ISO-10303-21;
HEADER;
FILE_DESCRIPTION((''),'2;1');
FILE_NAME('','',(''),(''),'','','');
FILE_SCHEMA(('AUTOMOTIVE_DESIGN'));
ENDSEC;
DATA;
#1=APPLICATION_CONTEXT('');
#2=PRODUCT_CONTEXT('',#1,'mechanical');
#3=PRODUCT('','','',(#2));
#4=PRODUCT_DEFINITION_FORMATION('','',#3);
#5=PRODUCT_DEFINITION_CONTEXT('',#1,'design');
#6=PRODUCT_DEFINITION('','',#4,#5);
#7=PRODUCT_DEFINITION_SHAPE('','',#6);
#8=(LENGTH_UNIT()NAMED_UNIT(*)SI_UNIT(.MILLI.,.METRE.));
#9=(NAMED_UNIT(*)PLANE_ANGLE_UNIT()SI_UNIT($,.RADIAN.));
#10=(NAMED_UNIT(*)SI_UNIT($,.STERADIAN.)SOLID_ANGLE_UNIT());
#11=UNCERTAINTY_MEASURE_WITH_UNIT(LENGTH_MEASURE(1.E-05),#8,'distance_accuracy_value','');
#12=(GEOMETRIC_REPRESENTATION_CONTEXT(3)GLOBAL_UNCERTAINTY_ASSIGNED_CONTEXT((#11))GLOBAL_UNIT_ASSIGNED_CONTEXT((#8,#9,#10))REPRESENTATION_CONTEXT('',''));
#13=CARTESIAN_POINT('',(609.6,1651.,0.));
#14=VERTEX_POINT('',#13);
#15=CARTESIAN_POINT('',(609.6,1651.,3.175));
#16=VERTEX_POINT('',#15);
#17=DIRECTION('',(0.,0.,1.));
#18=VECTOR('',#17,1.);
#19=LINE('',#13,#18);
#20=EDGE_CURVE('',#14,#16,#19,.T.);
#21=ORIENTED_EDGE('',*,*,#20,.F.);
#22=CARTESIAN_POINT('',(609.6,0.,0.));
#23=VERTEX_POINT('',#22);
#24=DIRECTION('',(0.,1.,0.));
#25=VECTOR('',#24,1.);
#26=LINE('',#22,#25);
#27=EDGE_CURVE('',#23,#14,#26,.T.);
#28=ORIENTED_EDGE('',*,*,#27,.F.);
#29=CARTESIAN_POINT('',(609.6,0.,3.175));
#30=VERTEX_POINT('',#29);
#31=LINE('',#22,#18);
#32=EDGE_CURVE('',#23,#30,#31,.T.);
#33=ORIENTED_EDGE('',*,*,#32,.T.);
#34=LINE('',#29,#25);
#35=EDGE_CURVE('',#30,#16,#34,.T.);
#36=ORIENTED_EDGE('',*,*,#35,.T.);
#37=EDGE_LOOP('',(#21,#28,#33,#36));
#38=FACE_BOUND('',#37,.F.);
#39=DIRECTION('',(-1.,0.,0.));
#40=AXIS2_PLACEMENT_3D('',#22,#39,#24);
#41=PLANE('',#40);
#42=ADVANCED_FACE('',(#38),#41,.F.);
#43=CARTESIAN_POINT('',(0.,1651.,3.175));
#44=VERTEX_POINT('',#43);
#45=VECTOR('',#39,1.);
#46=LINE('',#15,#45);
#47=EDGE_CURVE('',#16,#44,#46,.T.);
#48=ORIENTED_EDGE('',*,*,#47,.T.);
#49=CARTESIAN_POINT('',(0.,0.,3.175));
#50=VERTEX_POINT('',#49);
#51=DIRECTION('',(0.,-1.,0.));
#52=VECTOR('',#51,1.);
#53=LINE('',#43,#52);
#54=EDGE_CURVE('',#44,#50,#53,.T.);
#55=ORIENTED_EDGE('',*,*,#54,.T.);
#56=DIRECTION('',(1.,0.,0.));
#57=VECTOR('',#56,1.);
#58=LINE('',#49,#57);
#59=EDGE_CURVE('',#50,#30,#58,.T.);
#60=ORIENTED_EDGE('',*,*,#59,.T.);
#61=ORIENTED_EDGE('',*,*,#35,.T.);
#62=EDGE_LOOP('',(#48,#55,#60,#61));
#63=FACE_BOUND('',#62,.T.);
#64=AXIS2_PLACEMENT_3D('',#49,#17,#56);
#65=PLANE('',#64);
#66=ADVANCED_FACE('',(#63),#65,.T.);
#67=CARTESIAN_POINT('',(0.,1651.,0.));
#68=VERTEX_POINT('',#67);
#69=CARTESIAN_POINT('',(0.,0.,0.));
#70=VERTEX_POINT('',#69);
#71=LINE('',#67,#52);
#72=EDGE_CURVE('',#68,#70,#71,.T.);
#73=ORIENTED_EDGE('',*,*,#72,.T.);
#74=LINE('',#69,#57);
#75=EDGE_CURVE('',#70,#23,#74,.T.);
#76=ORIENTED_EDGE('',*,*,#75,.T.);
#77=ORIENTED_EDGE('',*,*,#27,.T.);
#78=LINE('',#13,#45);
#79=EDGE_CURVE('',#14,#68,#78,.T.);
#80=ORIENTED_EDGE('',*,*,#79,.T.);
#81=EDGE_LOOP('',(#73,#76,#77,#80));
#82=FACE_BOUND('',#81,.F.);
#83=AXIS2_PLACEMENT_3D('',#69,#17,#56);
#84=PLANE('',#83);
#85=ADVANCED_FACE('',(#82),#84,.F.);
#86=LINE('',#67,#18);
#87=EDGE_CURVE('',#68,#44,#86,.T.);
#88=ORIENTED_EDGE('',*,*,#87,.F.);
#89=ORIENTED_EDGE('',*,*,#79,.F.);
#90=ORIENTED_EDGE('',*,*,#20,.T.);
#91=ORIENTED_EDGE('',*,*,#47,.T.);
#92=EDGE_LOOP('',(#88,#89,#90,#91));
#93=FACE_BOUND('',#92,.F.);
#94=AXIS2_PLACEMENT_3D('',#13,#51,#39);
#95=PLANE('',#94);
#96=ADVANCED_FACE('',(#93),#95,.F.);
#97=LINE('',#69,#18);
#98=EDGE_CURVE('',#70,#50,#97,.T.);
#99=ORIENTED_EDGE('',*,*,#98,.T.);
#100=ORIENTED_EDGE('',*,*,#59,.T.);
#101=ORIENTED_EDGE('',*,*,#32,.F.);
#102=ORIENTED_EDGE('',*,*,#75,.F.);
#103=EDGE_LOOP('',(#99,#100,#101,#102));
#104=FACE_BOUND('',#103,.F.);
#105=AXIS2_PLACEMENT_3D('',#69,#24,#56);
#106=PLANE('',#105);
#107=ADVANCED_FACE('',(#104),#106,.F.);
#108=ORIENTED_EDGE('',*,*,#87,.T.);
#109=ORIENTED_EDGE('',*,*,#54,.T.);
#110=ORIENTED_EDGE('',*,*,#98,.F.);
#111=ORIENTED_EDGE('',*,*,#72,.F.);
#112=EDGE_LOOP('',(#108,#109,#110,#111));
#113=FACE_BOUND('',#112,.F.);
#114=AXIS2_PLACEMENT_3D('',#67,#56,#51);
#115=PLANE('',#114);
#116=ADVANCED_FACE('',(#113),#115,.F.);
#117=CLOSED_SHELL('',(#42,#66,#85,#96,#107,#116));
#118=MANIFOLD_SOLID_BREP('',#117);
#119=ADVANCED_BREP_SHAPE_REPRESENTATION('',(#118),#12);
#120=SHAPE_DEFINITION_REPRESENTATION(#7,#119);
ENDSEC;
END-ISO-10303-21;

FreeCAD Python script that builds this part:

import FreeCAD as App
import Part
import Sketcher
Q = App.Units.Quantity

doc = App.newDocument("Part")
body = doc.addObject("PartDesign::Body", "Body")

# Sketch on XY plane
sketch1 = doc.addObject("Sketcher::SketchObject", "Sketch")
body.addObject(sketch1)
sketch1.AttachmentSupport = (doc.XY_Plane, [""])
sketch1.MapMode = "FlatFace"
sketch1.addGeometry(Part.LineSegment(App.Vector(0, 1651, 0), App.Vector(0, 0, 0)), False)
sketch1.addGeometry(Part.LineSegment(App.Vector(0, 0, 0), App.Vector(610, 0, 0)), False)
sketch1.addGeometry(Part.LineSegment(App.Vector(610, 0, 0), App.Vector(610, 1651, 0)), False)
sketch1.addGeometry(Part.LineSegment(App.Vector(610, 1651, 0), App.Vector(0, 1651, 0)), False)
sketch1.addConstraint(Sketcher.Constraint("Coincident", 0, 2, 1, 1))
sketch1.addConstraint(Sketcher.Constraint("Coincident", 1, 2, 2, 1))
sketch1.addConstraint(Sketcher.Constraint("Coincident", 2, 2, 3, 1))
sketch1.addConstraint(Sketcher.Constraint("Coincident", 3, 2, 0, 1))
sketch1.addConstraint(Sketcher.Constraint("Vertical", 0))
sketch1.addConstraint(Sketcher.Constraint("Horizontal", 1))
sketch1.addConstraint(Sketcher.Constraint("Vertical", 2))
sketch1.addConstraint(Sketcher.Constraint("Horizontal", 3))
sketch1.addConstraint(Sketcher.Constraint("Coincident", 0, 2, -1, 1))
sketch1.addConstraint(Sketcher.Constraint("DistanceX", 1, 1, 1, 2, Q("24 in")))
sketch1.addConstraint(Sketcher.Constraint("DistanceY", 0, 2, 0, 1, Q("65 in")))
pad1 = doc.addObject("PartDesign::Pad", "Pad")
body.addObject(pad1)
pad1.Profile = sketch1
pad1.Length = Q("0.125 in")

doc.recompute()
